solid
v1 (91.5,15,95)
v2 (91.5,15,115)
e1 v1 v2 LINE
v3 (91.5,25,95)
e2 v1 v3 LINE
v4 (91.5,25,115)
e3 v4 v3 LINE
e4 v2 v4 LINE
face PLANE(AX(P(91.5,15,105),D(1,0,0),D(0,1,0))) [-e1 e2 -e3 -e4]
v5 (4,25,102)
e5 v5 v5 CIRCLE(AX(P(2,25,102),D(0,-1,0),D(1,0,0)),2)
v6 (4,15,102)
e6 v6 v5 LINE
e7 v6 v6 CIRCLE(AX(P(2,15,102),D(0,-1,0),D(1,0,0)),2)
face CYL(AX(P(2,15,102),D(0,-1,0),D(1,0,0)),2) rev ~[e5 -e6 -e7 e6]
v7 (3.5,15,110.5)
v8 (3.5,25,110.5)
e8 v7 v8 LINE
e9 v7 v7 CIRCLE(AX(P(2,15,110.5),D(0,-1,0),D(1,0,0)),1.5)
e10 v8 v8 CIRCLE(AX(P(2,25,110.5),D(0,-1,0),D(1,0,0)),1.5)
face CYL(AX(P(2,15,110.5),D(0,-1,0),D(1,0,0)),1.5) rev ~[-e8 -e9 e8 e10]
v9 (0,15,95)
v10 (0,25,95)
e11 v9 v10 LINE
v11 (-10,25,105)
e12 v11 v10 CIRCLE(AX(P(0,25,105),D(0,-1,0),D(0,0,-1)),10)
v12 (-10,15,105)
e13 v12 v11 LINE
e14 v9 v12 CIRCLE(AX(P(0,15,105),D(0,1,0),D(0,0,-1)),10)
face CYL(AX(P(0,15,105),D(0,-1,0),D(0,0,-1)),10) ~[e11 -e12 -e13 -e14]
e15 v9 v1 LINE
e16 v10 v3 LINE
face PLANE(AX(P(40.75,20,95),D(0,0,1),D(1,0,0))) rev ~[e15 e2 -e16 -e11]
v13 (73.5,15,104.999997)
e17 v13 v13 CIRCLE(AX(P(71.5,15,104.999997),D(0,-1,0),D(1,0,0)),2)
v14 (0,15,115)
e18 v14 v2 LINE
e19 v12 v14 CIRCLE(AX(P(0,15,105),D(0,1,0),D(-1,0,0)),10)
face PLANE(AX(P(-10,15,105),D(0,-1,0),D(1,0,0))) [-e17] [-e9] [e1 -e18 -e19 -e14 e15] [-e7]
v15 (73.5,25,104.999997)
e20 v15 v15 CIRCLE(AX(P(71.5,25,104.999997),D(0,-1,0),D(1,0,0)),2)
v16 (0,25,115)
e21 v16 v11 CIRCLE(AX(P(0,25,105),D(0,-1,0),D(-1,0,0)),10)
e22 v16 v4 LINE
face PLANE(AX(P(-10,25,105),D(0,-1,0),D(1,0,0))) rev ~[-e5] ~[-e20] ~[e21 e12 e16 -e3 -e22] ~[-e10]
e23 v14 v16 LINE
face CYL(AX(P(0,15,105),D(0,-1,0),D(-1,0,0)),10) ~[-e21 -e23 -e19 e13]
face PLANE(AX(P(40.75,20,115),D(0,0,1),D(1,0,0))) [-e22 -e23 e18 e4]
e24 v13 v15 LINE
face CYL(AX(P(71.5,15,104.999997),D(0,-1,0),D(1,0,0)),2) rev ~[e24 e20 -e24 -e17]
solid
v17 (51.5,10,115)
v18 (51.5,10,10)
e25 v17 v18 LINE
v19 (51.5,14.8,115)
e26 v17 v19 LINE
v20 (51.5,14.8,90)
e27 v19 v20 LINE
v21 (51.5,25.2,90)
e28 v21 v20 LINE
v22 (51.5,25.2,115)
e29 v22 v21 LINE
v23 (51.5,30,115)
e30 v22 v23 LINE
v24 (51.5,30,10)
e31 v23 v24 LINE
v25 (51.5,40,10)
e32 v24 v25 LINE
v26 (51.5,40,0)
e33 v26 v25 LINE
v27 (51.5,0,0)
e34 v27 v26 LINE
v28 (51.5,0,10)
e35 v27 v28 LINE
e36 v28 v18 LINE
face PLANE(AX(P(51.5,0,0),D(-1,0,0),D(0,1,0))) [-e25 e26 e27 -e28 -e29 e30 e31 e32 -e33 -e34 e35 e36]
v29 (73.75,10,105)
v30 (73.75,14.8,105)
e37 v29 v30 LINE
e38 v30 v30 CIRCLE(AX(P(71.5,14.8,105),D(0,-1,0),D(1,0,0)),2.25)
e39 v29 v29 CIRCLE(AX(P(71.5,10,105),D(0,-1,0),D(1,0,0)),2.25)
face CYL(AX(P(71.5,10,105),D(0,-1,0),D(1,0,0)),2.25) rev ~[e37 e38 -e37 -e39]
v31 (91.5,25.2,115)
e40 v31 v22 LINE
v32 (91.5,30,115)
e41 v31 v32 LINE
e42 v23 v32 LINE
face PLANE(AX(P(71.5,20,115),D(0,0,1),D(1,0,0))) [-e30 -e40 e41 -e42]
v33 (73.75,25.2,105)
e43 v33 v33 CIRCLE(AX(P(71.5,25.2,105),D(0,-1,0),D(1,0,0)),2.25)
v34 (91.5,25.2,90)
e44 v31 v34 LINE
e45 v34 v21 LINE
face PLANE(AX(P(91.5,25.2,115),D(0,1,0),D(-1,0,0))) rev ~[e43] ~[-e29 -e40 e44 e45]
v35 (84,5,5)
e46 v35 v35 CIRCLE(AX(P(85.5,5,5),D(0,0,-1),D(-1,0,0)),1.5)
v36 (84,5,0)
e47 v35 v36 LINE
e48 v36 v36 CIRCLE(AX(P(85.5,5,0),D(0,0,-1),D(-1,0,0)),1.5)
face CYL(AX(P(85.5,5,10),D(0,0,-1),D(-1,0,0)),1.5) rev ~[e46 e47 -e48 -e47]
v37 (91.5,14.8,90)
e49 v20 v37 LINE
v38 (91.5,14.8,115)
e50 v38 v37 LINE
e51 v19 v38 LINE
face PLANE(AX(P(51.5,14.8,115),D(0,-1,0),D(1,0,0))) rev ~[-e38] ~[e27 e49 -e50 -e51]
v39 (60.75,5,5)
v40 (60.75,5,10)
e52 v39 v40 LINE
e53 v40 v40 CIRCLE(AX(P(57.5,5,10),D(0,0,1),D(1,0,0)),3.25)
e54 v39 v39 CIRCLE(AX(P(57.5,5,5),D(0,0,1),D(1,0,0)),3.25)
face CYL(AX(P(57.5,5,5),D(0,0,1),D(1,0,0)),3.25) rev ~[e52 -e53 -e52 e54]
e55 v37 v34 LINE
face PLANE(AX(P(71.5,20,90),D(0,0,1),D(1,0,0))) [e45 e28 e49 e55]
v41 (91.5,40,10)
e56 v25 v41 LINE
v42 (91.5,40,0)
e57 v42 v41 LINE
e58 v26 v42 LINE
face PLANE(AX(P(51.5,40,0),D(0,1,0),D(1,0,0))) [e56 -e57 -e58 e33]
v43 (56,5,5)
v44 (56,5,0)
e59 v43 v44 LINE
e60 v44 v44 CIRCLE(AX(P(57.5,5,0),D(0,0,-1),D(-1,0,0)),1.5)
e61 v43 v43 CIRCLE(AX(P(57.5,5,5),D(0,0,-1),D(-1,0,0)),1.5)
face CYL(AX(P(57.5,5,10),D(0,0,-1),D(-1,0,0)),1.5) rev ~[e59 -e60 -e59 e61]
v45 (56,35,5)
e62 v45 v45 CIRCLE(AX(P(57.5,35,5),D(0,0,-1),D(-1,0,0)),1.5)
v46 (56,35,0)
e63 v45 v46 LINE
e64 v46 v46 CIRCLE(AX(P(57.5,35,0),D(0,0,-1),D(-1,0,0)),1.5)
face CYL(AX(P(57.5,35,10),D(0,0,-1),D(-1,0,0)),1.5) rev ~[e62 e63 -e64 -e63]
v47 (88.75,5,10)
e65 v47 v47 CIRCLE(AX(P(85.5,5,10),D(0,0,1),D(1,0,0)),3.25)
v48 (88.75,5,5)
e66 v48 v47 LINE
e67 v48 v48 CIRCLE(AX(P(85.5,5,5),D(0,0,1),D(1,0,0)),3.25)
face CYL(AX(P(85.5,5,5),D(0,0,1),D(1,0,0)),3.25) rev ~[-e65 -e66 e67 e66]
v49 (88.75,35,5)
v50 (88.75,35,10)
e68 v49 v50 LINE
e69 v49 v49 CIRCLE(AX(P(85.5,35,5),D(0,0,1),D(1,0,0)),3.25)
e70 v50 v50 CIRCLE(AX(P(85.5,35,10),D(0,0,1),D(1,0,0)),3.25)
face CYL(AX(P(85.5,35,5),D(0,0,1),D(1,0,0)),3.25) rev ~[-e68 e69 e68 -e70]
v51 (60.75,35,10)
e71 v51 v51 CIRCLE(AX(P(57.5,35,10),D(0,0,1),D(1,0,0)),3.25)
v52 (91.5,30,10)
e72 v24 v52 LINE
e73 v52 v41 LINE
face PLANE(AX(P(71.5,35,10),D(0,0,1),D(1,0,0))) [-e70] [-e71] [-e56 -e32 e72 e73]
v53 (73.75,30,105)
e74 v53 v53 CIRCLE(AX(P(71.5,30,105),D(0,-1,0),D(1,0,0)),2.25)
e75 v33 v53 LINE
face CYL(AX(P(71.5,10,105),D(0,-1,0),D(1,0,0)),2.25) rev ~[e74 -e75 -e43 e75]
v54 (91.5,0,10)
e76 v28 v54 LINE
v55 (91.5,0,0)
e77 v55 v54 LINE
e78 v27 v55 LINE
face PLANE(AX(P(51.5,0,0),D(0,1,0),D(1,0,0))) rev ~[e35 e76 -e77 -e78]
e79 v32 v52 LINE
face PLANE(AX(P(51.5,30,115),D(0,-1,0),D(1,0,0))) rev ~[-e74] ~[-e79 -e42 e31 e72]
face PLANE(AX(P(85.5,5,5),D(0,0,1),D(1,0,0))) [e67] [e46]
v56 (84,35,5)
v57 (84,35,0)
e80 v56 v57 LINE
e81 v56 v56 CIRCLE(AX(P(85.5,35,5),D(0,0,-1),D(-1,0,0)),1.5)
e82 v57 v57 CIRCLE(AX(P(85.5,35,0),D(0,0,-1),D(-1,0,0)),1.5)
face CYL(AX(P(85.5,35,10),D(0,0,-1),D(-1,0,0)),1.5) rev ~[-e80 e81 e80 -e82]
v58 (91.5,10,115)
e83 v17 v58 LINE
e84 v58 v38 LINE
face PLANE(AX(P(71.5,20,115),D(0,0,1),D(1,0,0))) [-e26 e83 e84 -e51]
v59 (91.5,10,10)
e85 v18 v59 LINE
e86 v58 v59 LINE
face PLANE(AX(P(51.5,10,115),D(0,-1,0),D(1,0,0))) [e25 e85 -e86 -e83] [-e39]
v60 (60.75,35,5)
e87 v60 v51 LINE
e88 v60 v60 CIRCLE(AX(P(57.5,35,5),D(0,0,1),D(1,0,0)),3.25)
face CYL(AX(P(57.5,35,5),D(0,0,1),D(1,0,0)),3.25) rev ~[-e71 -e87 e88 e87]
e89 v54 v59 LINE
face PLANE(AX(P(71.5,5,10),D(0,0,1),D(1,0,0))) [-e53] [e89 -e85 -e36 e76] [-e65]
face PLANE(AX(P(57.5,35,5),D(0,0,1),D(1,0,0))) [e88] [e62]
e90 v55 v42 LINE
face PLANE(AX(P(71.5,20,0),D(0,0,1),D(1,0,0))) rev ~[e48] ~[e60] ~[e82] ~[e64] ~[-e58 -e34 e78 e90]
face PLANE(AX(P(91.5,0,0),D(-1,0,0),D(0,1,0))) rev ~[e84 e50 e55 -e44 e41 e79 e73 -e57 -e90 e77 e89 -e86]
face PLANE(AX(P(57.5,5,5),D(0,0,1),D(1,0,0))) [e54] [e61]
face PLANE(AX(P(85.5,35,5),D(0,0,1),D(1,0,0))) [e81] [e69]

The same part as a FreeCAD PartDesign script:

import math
import FreeCAD as App
import Part
import Sketcher

V = App.Vector

doc = App.newDocument("Part")
body = doc.addObject("PartDesign::Body", "Body")

# Sketch on XY plane
sketch1 = body.newObject("Sketcher::SketchObject", "Sketch")
sketch1.AttachmentSupport = (doc.getObject("XY_Plane"), [""])
sketch1.MapMode = "FlatFace"
sketch1.addGeometry([
    Part.LineSegment(V(51.5, 40, 0), V(51.5, 0, 0)),
    Part.LineSegment(V(51.5, 0, 0), V(91.5, 0, 0)),
    Part.LineSegment(V(91.5, 0, 0), V(91.5, 40, 0)),
    Part.LineSegment(V(91.5, 40, 0), V(51.5, 40, 0)),
], False)
sketch1.addConstraint([
    Sketcher.Constraint("Coincident", 0, 2, 1, 1),
    Sketcher.Constraint("Coincident", 1, 2, 2, 1),
    Sketcher.Constraint("Coincident", 2, 2, 3, 1),
    Sketcher.Constraint("Coincident", 3, 2, 0, 1),
    Sketcher.Constraint("Vertical", 0),
    Sketcher.Constraint("Horizontal", 1),
    Sketcher.Constraint("Vertical", 2),
    Sketcher.Constraint("Horizontal", 3),
    Sketcher.Constraint("PointOnObject", 0, 2, -1),
    Sketcher.Constraint("Equal", 3, 0),
    Sketcher.Constraint("DistanceX", 1, 1, 1, 2, 40.0),
    Sketcher.Constraint("DistanceX", -1, 1, 0, 2, 51.5),
])
pad1 = body.newObject("PartDesign::Pad", "Pad")
pad1.Profile = sketch1
pad1.Length = 115

# Sketch on XY plane
sketch2 = body.newObject("Sketcher::SketchObject", "Sketch001")
sketch2.AttachmentSupport = (doc.getObject("XY_Plane"), [""])
sketch2.MapMode = "FlatFace"
sketch2.AttachmentOffset = App.Placement(V(0, 0, 115), App.Rotation())
sketch2.addGeometry([
    Part.LineSegment(V(51.5, 10, 0), V(51.5, 0, 0)),  # 0
    Part.LineSegment(V(51.5, 0, 0), V(91.5, 0, 0)),  # 1
    Part.LineSegment(V(91.5, 0, 0), V(91.5, 10, 0)),  # 2
    Part.LineSegment(V(91.5, 10, 0), V(51.5, 10, 0)),  # 3
    Part.LineSegment(V(51.5, 40, 0), V(51.5, 30, 0)),  # 4
    Part.LineSegment(V(51.5, 30, 0), V(91.5, 30, 0)),  # 5
    Part.LineSegment(V(91.5, 30, 0), V(91.5, 40, 0)),  # 6
    Part.LineSegment(V(91.5, 40, 0), V(51.5, 40, 0)),  # 7
], False)
sketch2.addConstraint([
    Sketcher.Constraint("Coincident", 0, 2, 1, 1),
    Sketcher.Constraint("Coincident", 1, 2, 2, 1),
    Sketcher.Constraint("Coincident", 2, 2, 3, 1),
    Sketcher.Constraint("Coincident", 3, 2, 0, 1),
    Sketcher.Constraint("Coincident", 4, 2, 5, 1),
    Sketcher.Constraint("Coincident", 5, 2, 6, 1),
    Sketcher.Constraint("Coincident", 6, 2, 7, 1),
    Sketcher.Constraint("Coincident", 7, 2, 4, 1),
    Sketcher.Constraint("Vertical", 0),
    Sketcher.Constraint("Horizontal", 1),
    Sketcher.Constraint("Vertical", 2),
    Sketcher.Constraint("Horizontal", 3),
    Sketcher.Constraint("Vertical", 4),
    Sketcher.Constraint("Horizontal", 5),
    Sketcher.Constraint("Vertical", 6),
    Sketcher.Constraint("Horizontal", 7),
    Sketcher.Constraint("PointOnObject", 0, 2, -1),
    Sketcher.Constraint("Vertical", 3, 2, 4, 2),
    Sketcher.Constraint("Vertical", 2, 2, 5, 2),
    Sketcher.Constraint("Equal", 2, 4),
    Sketcher.Constraint("DistanceX", 1, 1, 1, 2, 40.0),
    Sketcher.Constraint("DistanceY", 0, 2, 0, 1, 10.0),
    Sketcher.Constraint("DistanceY", -1, 1, 4, 2, 30.0),
    Sketcher.Constraint("DistanceX", -1, 1, 0, 2, 51.5),
])
pocket1 = body.newObject("PartDesign::Pocket", "Pocket")
pocket1.Profile = sketch2
pocket1.Length = 105

# Sketch on XY plane
sketch3 = body.newObject("Sketcher::SketchObject", "Sketch002")
sketch3.AttachmentSupport = (doc.getObject("XY_Plane"), [""])
sketch3.MapMode = "FlatFace"
sketch3.AttachmentOffset = App.Placement(V(0, 0, 10), App.Rotation())
sketch3.addGeometry([
    Part.Circle(V(57.5, 5, 0), V(0, 0, 1), 1.5),
    Part.Circle(V(85.5, 5, 0), V(0, 0, 1), 1.5),
    Part.Circle(V(85.5, 35, 0), V(0, 0, 1), 1.5),
    Part.Circle(V(57.5, 35, 0), V(0, 0, 1), 1.5),
], False)
sketch3.addConstraint([
    Sketcher.Constraint("Equal", 0, 1),
    Sketcher.Constraint("Equal", 1, 2),
    Sketcher.Constraint("Equal", 2, 3),
    Sketcher.Constraint("Horizontal", 0, 3, 1, 3),
    Sketcher.Constraint("Horizontal", 2, 3, 3, 3),
    Sketcher.Constraint("Vertical", 1, 3, 2, 3),
    Sketcher.Constraint("Vertical", 0, 3, 3, 3),
    Sketcher.Constraint("Diameter", 0, 3.0),
    Sketcher.Constraint("DistanceY", -1, 1, 0, 3, 5.0),
    Sketcher.Constraint("DistanceY", -1, 1, 2, 3, 35.0),
    Sketcher.Constraint("DistanceX", 0, 3, 1, 3, 28.0),
    Sketcher.Constraint("DistanceX", -1, 1, 0, 3, 57.5),
])
doc.recompute()
hole = body.newObject("PartDesign::Hole", "Hole")
hole.Profile = sketch3
hole.ThreadType = "None"
hole.Diameter = 3
hole.DepthType = "Dimension"
hole.Depth = 10.7
hole.DrillPoint = "Angled"
hole.DrillPointAngle = 118
hole.HoleCutType = "Counterbore"
hole.HoleCutDiameter = 6.5
hole.HoleCutDepth = 5

# Sketch on XY plane
sketch4 = body.newObject("Sketcher::SketchObject", "Sketch003")
sketch4.AttachmentSupport = (doc.getObject("XY_Plane"), [""])
sketch4.MapMode = "FlatFace"
sketch4.AttachmentOffset = App.Placement(V(0, 0, 115), App.Rotation())
sketch4.addGeometry([
    Part.LineSegment(V(51.5, 25.2, 0), V(51.5, 14.8, 0)),
    Part.LineSegment(V(51.5, 14.8, 0), V(91.5, 14.8, 0)),
    Part.LineSegment(V(91.5, 14.8, 0), V(91.5, 25.2, 0)),
    Part.LineSegment(V(91.5, 25.2, 0), V(51.5, 25.2, 0)),
], False)
sketch4.addConstraint([
    Sketcher.Constraint("Coincident", 0, 2, 1, 1),
    Sketcher.Constraint("Coincident", 1, 2, 2, 1),
    Sketcher.Constraint("Coincident", 2, 2, 3, 1),
    Sketcher.Constraint("Coincident", 3, 2, 0, 1),
    Sketcher.Constraint("Vertical", 0),
    Sketcher.Constraint("Horizontal", 1),
    Sketcher.Constraint("Vertical", 2),
    Sketcher.Constraint("Horizontal", 3),
    Sketcher.Constraint("DistanceX", 1, 1, 1, 2, 40.0),
    Sketcher.Constraint("DistanceY", 0, 2, 0, 1, 10.4),
    Sketcher.Constraint("DistanceX", -1, 1, 0, 2, 51.5),
    Sketcher.Constraint("DistanceY", -1, 1, 0, 2, 14.8),
])
pocket2 = body.newObject("PartDesign::Pocket", "Pocket001")
pocket2.Profile = sketch4
pocket2.Length = 25

# Sketch on XZ plane
sketch5 = body.newObject("Sketcher::SketchObject", "Sketch004")
sketch5.AttachmentSupport = (doc.getObject("XZ_Plane"), [""])
sketch5.MapMode = "FlatFace"
sketch5.AttachmentOffset = App.Placement(V(0, 0, -10), App.Rotation())
sketch5.addGeometry(Part.Circle(V(71.5, 105, 0), V(0, 0, 1), 2.25), False)
sketch5.addConstraint([
    Sketcher.Constraint("Diameter", 0, 4.5),
    Sketcher.Constraint("DistanceY", -1, 1, 0, 3, 105.0),
    Sketcher.Constraint("DistanceX", -1, 1, 0, 3, 71.5),
])
pocket3 = body.newObject("PartDesign::Pocket", "Pocket002")
pocket3.Profile = sketch5
pocket3.Type = "ThroughAll"
body2 = doc.addObject("PartDesign::Body", "Body001")

# Sketch on XY plane
sketch6 = body2.newObject("Sketcher::SketchObject", "Sketch005")
sketch6.AttachmentSupport = (doc.getObject("XY_Plane001"), [""])
sketch6.MapMode = "FlatFace"
sketch6.AttachmentOffset = App.Placement(V(0, 0, 105), App.Rotation())
sketch6.addGeometry([
    Part.LineSegment(V(-10, 25, 0), V(-10, 15, 0)),
    Part.LineSegment(V(-10, 15, 0), V(91.5, 15, 0)),
    Part.LineSegment(V(91.5, 15, 0), V(91.5, 25, 0)),
    Part.LineSegment(V(91.5, 25, 0), V(-10, 25, 0)),
], False)
sketch6.addConstraint([
    Sketcher.Constraint("Coincident", 0, 2, 1, 1),
    Sketcher.Constraint("Coincident", 1, 2, 2, 1),
    Sketcher.Constraint("Coincident", 2, 2, 3, 1),
    Sketcher.Constraint("Coincident", 3, 2, 0, 1),
    Sketcher.Constraint("Vertical", 0),
    Sketcher.Constraint("Horizontal", 1),
    Sketcher.Constraint("Vertical", 2),
    Sketcher.Constraint("Horizontal", 3),
    Sketcher.Constraint("DistanceY", 0, 2, 0, 1, 10.0),
    Sketcher.Constraint("DistanceX", 1, 1, 1, 2, 101.5),
    Sketcher.Constraint("DistanceX", 0, 2, -1, 1, 10.0),
    Sketcher.Constraint("DistanceY", -1, 1, 0, 2, 15.0),
])
pad2 = body2.newObject("PartDesign::Pad", "Pad001")
pad2.Profile = sketch6
pad2.Length = 20
pad2.Midplane = True

# Sketch on XZ plane
sketch7 = body2.newObject("Sketcher::SketchObject", "Sketch006")
sketch7.AttachmentSupport = (doc.getObject("XZ_Plane001"), [""])
sketch7.MapMode = "FlatFace"
sketch7.AttachmentOffset = App.Placement(V(0, 0, -15), App.Rotation())
sketch7.addGeometry([
    Part.Circle(V(71.5, 104.999997, 0), V(0, 0, 1), 2),  # 0
    Part.Circle(V(2, 102, 0), V(0, 0, 1), 2),  # 1
    Part.Circle(V(2, 110.5, 0), V(0, 0, 1), 1.5),  # 2
    Part.ArcOfCircle(Part.Circle(V(0, 105, 0), V(0, 0, 1), 10), math.radians(180), math.radians(270)),  # 3
    Part.LineSegment(V(-10, 105, 0), V(-10, 95, 0)),  # 4
    Part.LineSegment(V(-10, 95, 0), V(0, 95, 0)),  # 5
    Part.ArcOfCircle(Part.Circle(V(0, 105, 0), V(0, 0, 1), 10), math.radians(90), math.radians(180)),  # 6
    Part.LineSegment(V(0, 115, 0), V(-10, 115, 0)),  # 7
    Part.LineSegment(V(-10, 115, 0), V(-10, 105, 0)),  # 8
], False)
sketch7.addConstraint([
    Sketcher.Constraint("Tangent", 3, 1, 4, 1),
    Sketcher.Constraint("Coincident", 4, 2, 5, 1),
    Sketcher.Constraint("Tangent", 5, 2, 3, 2),
    Sketcher.Constraint("Tangent", 6, 1, 7, 1),
    Sketcher.Constraint("Coincident", 7, 2, 8, 1),
    Sketcher.Constraint("Tangent", 8, 2, 6, 2),
    Sketcher.Constraint("Vertical", 4),
    Sketcher.Constraint("Horizontal", 5),
    Sketcher.Constraint("Horizontal", 7),
    Sketcher.Constraint("Vertical", 8),
    Sketcher.Constraint("Coincident", 6, 3, 3, 3),
    Sketcher.Constraint("Equal", 0, 1),
    Sketcher.Constraint("Equal", 3, 6),
    Sketcher.Constraint("PointOnObject", 3, 3, -2),
    Sketcher.Constraint("Vertical", 1, 3, 2, 3),
    Sketcher.Constraint("Diameter", 0, 4.0),
    Sketcher.Constraint("Diameter", 2, 3.0),
    Sketcher.Constraint("Radius", 3, 10.0),
    Sketcher.Constraint("DistanceX", -1, 1, 1, 3, 2.0),
    Sketcher.Constraint("DistanceY", -1, 1, 1, 3, 102.0),
    Sketcher.Constraint("DistanceY", -1, 1, 3, 3, 105.0),
    Sketcher.Constraint("DistanceX", -1, 1, 0, 3, 71.5),
    Sketcher.Constraint("DistanceY", -1, 1, 2, 3, 110.5),
    Sketcher.Constraint("DistanceY", -1, 1, 0, 3, 104.999997),
])
pocket4 = body2.newObject("PartDesign::Pocket", "Pocket003")
pocket4.Profile = sketch7
pocket4.Type = "ThroughAll"

doc.recompute()
